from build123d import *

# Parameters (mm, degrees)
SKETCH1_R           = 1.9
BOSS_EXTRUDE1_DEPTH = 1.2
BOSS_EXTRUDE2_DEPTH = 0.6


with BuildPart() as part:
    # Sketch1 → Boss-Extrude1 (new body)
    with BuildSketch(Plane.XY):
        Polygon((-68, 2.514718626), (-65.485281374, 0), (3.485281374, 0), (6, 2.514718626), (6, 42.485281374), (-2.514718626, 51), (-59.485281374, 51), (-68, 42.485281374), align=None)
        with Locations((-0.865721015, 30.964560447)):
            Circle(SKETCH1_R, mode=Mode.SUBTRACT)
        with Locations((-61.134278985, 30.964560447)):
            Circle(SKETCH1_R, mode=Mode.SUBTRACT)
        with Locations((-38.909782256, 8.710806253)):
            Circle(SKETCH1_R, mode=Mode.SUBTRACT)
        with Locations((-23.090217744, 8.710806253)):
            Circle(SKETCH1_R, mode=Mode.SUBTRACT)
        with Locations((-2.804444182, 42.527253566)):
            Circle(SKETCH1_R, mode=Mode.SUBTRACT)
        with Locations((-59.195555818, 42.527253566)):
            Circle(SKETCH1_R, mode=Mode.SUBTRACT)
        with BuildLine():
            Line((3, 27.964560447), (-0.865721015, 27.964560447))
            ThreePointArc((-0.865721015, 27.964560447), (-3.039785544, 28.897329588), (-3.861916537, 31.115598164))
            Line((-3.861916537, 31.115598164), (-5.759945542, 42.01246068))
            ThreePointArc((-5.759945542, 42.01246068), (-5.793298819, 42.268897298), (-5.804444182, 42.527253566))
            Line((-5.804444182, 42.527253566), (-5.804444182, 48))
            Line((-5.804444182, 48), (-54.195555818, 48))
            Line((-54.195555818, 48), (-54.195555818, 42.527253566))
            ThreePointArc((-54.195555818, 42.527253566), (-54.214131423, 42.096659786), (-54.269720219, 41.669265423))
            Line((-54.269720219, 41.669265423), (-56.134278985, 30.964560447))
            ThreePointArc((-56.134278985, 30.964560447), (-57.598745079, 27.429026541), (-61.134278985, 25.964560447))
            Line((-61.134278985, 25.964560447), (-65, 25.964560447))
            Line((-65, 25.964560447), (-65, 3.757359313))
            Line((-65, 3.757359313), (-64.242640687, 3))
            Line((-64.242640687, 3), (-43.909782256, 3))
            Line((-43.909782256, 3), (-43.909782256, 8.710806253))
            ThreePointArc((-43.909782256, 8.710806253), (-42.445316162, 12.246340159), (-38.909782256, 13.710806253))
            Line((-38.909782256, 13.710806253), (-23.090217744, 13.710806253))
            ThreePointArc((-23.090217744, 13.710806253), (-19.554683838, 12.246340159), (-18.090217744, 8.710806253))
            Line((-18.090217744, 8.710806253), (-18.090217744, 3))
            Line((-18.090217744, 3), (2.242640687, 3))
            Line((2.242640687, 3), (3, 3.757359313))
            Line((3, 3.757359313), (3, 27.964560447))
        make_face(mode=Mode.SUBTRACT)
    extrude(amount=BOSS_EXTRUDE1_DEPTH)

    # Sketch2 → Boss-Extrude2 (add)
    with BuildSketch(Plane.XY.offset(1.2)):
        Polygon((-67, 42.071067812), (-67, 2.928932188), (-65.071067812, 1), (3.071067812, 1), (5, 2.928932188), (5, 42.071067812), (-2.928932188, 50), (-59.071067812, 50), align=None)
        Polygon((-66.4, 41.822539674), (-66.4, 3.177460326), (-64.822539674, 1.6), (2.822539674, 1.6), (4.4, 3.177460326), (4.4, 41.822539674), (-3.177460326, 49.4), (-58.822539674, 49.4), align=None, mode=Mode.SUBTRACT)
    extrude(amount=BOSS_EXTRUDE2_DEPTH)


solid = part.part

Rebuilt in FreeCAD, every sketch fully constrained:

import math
import FreeCAD as App
import Part
import Sketcher
from FreeCAD import Vector
Q = App.Units.Quantity


def add_polygon(sketch, points):
    """Adds a closed chain of lines whose ends are joined by coincident constraints."""
    first, n = sketch.GeometryCount, len(points)
    for a, b in zip(points, points[1:] + points[:1]):
        sketch.addGeometry(Part.LineSegment(App.Vector(*a, 0), App.Vector(*b, 0)), False)
    for i in range(n):
        sketch.addConstraint(Sketcher.Constraint("Coincident", first + i, 2, first + (i + 1) % n, 1))

doc = App.newDocument("Part")
params = doc.addObject("Spreadsheet::Sheet", "Params")
for row, (alias, value) in enumerate([
    ("sketch1_radius", "5 mm"),
    ("sketch1_radius2", "3 mm"),
    ("sketch1_diameter", "3.8 mm"),
    ("pad1_length", "1.2 mm"),
    ("pad2_length", "0.6 mm"),
], start=1):
    params.set(f"A{row}", alias)
    params.set(f"B{row}", "=" + value)
    params.setAlias(f"B{row}", alias)

body = doc.addObject("PartDesign::Body", "Body")

sketch1 = doc.addObject("Sketcher::SketchObject", "Sketch")
body.addObject(sketch1)
sketch1.AttachmentSupport = (doc.XY_Plane, [""])
sketch1.MapMode = "FlatFace"
add_polygon(sketch1, [(-68, 2.514719), (-65.485281, 0), (3.485281, 0), (6, 2.514719), (6, 42.485281), (-2.514719, 51), (-59.485281, 51), (-68, 42.485281)])
sketch1.addGeometry(Part.Circle(Vector(-38.909782, 8.710806, 0), Vector(0, 0, 1), 1.9), False)
sketch1.addGeometry(Part.Circle(Vector(-23.090218, 8.710806, 0), Vector(0, 0, 1), 1.9), False)
sketch1.addGeometry(Part.Circle(Vector(-61.134279, 30.96456, 0), Vector(0, 0, 1), 1.9), False)
sketch1.addGeometry(Part.Circle(Vector(-59.195556, 42.527254, 0), Vector(0, 0, 1), 1.9), False)
sketch1.addGeometry(Part.LineSegment(Vector(-0.865721, 27.96456, 0), Vector(3, 27.96456, 0)), False)
sketch1.addGeometry(Part.LineSegment(Vector(3, 27.96456, 0), Vector(3, 3.757359, 0)), False)
sketch1.addGeometry(Part.LineSegment(Vector(3, 3.757359, 0), Vector(2.242641, 3, 0)), False)
sketch1.addGeometry(Part.LineSegment(Vector(2.242641, 3, 0), Vector(-18.090218, 3, 0)), False)
sketch1.addGeometry(Part.LineSegment(Vector(-18.090218, 3, 0), Vector(-18.090218, 8.710806, 0)), False)
sketch1.addGeometry(Part.ArcOfCircle(Part.Circle(Vector(-23.090218, 8.710806, 0), Vector(0, 0, 1), 5), math.radians(0), math.radians(90)), False)
sketch1.addGeometry(Part.LineSegment(Vector(-23.090218, 13.710806, 0), Vector(-38.909782, 13.710806, 0)), False)
sketch1.addGeometry(Part.ArcOfCircle(Part.Circle(Vector(-38.909782, 8.710806, 0), Vector(0, 0, 1), 5), math.radians(90), math.radians(180)), False)
sketch1.addGeometry(Part.LineSegment(Vector(-43.909782, 8.710806, 0), Vector(-43.909782, 3, 0)), False)
sketch1.addGeometry(Part.LineSegment(Vector(-43.909782, 3, 0), Vector(-64.242641, 3, 0)), False)
sketch1.addGeometry(Part.LineSegment(Vector(-64.242641, 3, 0), Vector(-65, 3.757359, 0)), False)
sketch1.addGeometry(Part.LineSegment(Vector(-65, 3.757359, 0), Vector(-65, 25.96456, 0)), False)
sketch1.addGeometry(Part.LineSegment(Vector(-65, 25.96456, 0), Vector(-61.134279, 25.96456, 0)), False)
sketch1.addGeometry(Part.ArcOfCircle(Part.Circle(Vector(-61.134279, 30.96456, 0), Vector(0, 0, 1), 5), math.radians(-90), math.radians(0)), False)
sketch1.addGeometry(Part.LineSegment(Vector(-56.134279, 30.96456, 0), Vector(-54.26972, 41.669265, 0)), False)
sketch1.addGeometry(Part.ArcOfCircle(Part.Circle(Vector(-59.195556, 42.527254, 0), Vector(0, 0, 1), 5), math.radians(-9.880722), math.radians(0)), False)
sketch1.addGeometry(Part.LineSegment(Vector(-54.195556, 42.527254, 0), Vector(-54.195556, 48, 0)), False)
sketch1.addGeometry(Part.LineSegment(Vector(-54.195556, 48, 0), Vector(-5.804444, 48, 0)), False)
sketch1.addGeometry(Part.LineSegment(Vector(-5.804444, 48, 0), Vector(-5.804444, 42.527254, 0)), False)
sketch1.addGeometry(Part.ArcOfCircle(Part.Circle(Vector(-2.804444, 42.527254, 0), Vector(0, 0, 1), 3), math.radians(180), math.radians(189.880721)), False)
sketch1.addGeometry(Part.LineSegment(Vector(-5.759946, 42.012461, 0), Vector(-3.861917, 31.115598, 0)), False)
sketch1.addGeometry(Part.ArcOfCircle(Part.Circle(Vector(-0.865721, 30.96456, 0), Vector(0, 0, 1), 3), math.radians(177.114172), math.radians(270)), False)
sketch1.addGeometry(Part.Circle(Vector(-0.865721, 30.96456, 0), Vector(0, 0, 1), 1.9), False)
sketch1.addGeometry(Part.Circle(Vector(-2.804444, 42.527254, 0), Vector(0, 0, 1), 1.9), False)
sketch1.addConstraint(Sketcher.Constraint("Coincident", 12, 2, 13, 1))
sketch1.addConstraint(Sketcher.Constraint("Coincident", 13, 2, 14, 1))
sketch1.addConstraint(Sketcher.Constraint("Coincident", 14, 2, 15, 1))
sketch1.addConstraint(Sketcher.Constraint("Coincident", 15, 2, 16, 1))
sketch1.addConstraint(Sketcher.Constraint("Tangent", 16, 2, 17, 1))
sketch1.addConstraint(Sketcher.Constraint("Tangent", 17, 2, 18, 1))
sketch1.addConstraint(Sketcher.Constraint("Tangent", 18, 2, 19, 1))
sketch1.addConstraint(Sketcher.Constraint("Tangent", 19, 2, 20, 1))
sketch1.addConstraint(Sketcher.Constraint("Coincident", 20, 2, 21, 1))
sketch1.addConstraint(Sketcher.Constraint("Coincident", 21, 2, 22, 1))
sketch1.addConstraint(Sketcher.Constraint("Coincident", 22, 2, 23, 1))
sketch1.addConstraint(Sketcher.Constraint("Coincident", 23, 2, 24, 1))
sketch1.addConstraint(Sketcher.Constraint("Tangent", 24, 2, 25, 1))
sketch1.addConstraint(Sketcher.Constraint("Coincident", 25, 2, 26, 1))
sketch1.addConstraint(Sketcher.Constraint("Tangent", 26, 2, 27, 1))
sketch1.addConstraint(Sketcher.Constraint("Tangent", 27, 2, 28, 1))
sketch1.addConstraint(Sketcher.Constraint("Coincident", 28, 2, 29, 1))
sketch1.addConstraint(Sketcher.Constraint("Coincident", 29, 2, 30, 1))
sketch1.addConstraint(Sketcher.Constraint("Tangent", 30, 2, 31, 1))
sketch1.addConstraint(Sketcher.Constraint("Tangent", 31, 2, 32, 1))
sketch1.addConstraint(Sketcher.Constraint("Coincident", 32, 2, 33, 1))
sketch1.addConstraint(Sketcher.Constraint("Tangent", 33, 2, 12, 1))
sketch1.addConstraint(Sketcher.Constraint("Horizontal", 1))
sketch1.addConstraint(Sketcher.Constraint("Vertical", 3))
sketch1.addConstraint(Sketcher.Constraint("Horizontal", 5))
sketch1.addConstraint(Sketcher.Constraint("Vertical", 7))
sketch1.addConstraint(Sketcher.Constraint("Horizontal", 12))
sketch1.addConstraint(Sketcher.Constraint("Vertical", 13))
sketch1.addConstraint(Sketcher.Constraint("Horizontal", 15))
sketch1.addConstraint(Sketcher.Constraint("Vertical", 16))
sketch1.addConstraint(Sketcher.Constraint("Horizontal", 18))
sketch1.addConstraint(Sketcher.Constraint("Vertical", 20))
sketch1.addConstraint(Sketcher.Constraint("Horizontal", 21))
sketch1.addConstraint(Sketcher.Constraint("Vertical", 23))
sketch1.addConstraint(Sketcher.Constraint("Horizontal", 24))
sketch1.addConstraint(Sketcher.Constraint("Vertical", 28))
sketch1.addConstraint(Sketcher.Constraint("Horizontal", 29))
sketch1.addConstraint(Sketcher.Constraint("Vertical", 30))
sketch1.addConstraint(Sketcher.Constraint("Coincident", 17, 3, 9, 3))
sketch1.addConstraint(Sketcher.Constraint("Coincident", 19, 3, 8, 3))
sketch1.addConstraint(Sketcher.Constraint("Coincident", 25, 3, 10, 3))
sketch1.addConstraint(Sketcher.Constraint("Coincident", 27, 3, 11, 3))
sketch1.addConstraint(Sketcher.Constraint("Coincident", 34, 3, 33, 3))
sketch1.addConstraint(Sketcher.Constraint("Coincident", 35, 3, 31, 3))
sketch1.addConstraint(Sketcher.Constraint("Equal", 8, 9))
sketch1.addConstraint(Sketcher.Constraint("Equal", 9, 10))
sketch1.addConstraint(Sketcher.Constraint("Equal", 10, 11))
sketch1.addConstraint(Sketcher.Constraint("Equal", 17, 19))
sketch1.addConstraint(Sketcher.Constraint("Equal", 19, 25))
sketch1.addConstraint(Sketcher.Constraint("Equal", 25, 27))
sketch1.addConstraint(Sketcher.Constraint("Equal", 31, 33))
sketch1.addConstraint(Sketcher.Constraint("Equal", 11, 34))
sketch1.addConstraint(Sketcher.Constraint("Equal", 34, 35))
sketch1.addConstraint(Sketcher.Constraint("PointOnObject", 0, 2, -1))
sketch1.addConstraint(Sketcher.Constraint("Perpendicular", 0, 2))
sketch1.addConstraint(Sketcher.Constraint("Perpendicular", 2, 4))
sketch1.addConstraint(Sketcher.Constraint("Perpendicular", 4, 6))
sketch1.addConstraint(Sketcher.Constraint("Parallel", 6, 14))
sketch1.addConstraint(Sketcher.Constraint("Perpendicular", 14, 22))
sketch1.addConstraint(Sketcher.Constraint("Horizontal", 27, 3, 31, 3))
sketch1.addConstraint(Sketcher.Constraint("Horizontal", 25, 3, 33, 3))
sketch1.addConstraint(Sketcher.Constraint("Horizontal", 3, 2, 6, 2))
sketch1.addConstraint(Sketcher.Constraint("Horizontal", 2, 2, 7, 2))
sketch1.addConstraint(Sketcher.Constraint("Horizontal", 15, 2, 20, 2))
sketch1.addConstraint(Sketcher.Constraint("Horizontal", 13, 2, 22, 2))
sketch1.addConstraint(Sketcher.Constraint("Horizontal", 34, 3, 25, 2))
sketch1.addConstraint(Sketcher.Constraint("Equal", 15, 21))
sketch1.addConstraint(Sketcher.Constraint("Equal", 12, 24))
sketch1.addConstraint(Sketcher.Constraint("Equal", 0, 2))
sketch1.addConstraint(Sketcher.Constraint("Radius", 17, Q("5 mm")))
sketch1.addConstraint(Sketcher.Constraint("Radius", 31, Q("3 mm")))
sketch1.addConstraint(Sketcher.Constraint("Diameter", 8, Q("3.8 mm")))
sketch1.addConstraint(Sketcher.Constraint("DistanceX", -1, 1, 2, 2, Q("6 mm")))
sketch1.addConstraint(Sketcher.Constraint("DistanceY", -1, 1, 4, 2, Q("51 mm")))
sketch1.addConstraint(Sketcher.Constraint("DistanceX", 6, 2, -1, 1, Q("68 mm")))
sketch1.addConstraint(Sketcher.Constraint("DistanceX", -1, 1, 12, 2, Q("3 mm")))
sketch1.addConstraint(Sketcher.Constraint("DistanceY", -1, 1, 14, 2, Q("3 mm")))
sketch1.addConstraint(Sketcher.Constraint("DistanceX", 22, 2, -1, 1, Q("65 mm")))
sketch1.addConstraint(Sketcher.Constraint("DistanceY", -1, 1, 28, 2, Q("48 mm")))
sketch1.addConstraint(Sketcher.Constraint("DistanceY", 13, 2, 13, 1, Q("24.207201 mm")))
sketch1.addConstraint(Sketcher.Constraint("DistanceX", 12, 1, 12, 2, Q("3.865721 mm")))
sketch1.addConstraint(Sketcher.Constraint("DistanceX", 15, 2, 15, 1, Q("20.332858 mm")))
sketch1.addConstraint(Sketcher.Constraint("DistanceX", 29, 1, 29, 2, Q("48.391112 mm")))
sketch1.addConstraint(Sketcher.Constraint("DistanceY", -1, 1, 32, 2, Q("31.115598 mm")))
sketch1.addConstraint(Sketcher.Constraint("DistanceX", 0, 2, 8, 3, Q("26.575499 mm")))
sketch1.addConstraint(Sketcher.Constraint("DistanceX", 5, 2, 8, 3, Q("20.575499 mm")))
sketch1.addConstraint(Sketcher.Constraint("DistanceX", 30, 2, 31, 2, Q("0.044499 mm")))
sketch1.addConstraint(Sketcher.Constraint("Distance", 0, Q("3.556349 mm")))
sketch1.addConstraint(Sketcher.Constraint("DistanceY", 16, 1, 16, 2, Q("5.710806 mm")))
sketch1.addConstraint(Sketcher.Constraint("DistanceY", 28, 1, 28, 2, Q("5.472746 mm")))
sketch1.setExpression("Constraints[77]", "Params.sketch1_radius")
sketch1.setExpression("Constraints[78]", "Params.sketch1_radius2")
sketch1.setExpression("Constraints[79]", "Params.sketch1_diameter")
pad1 = doc.addObject("PartDesign::Pad", "Pad")
body.addObject(pad1)
pad1.Profile = sketch1
pad1.setExpression("Length", "Params.pad1_length")

sketch2 = doc.addObject("Sketcher::SketchObject", "Sketch001")
body.addObject(sketch2)
sketch2.AttachmentSupport = (doc.XY_Plane, [""])
sketch2.MapMode = "FlatFace"
sketch2.AttachmentOffset = App.Placement(Vector(0, 0, 1.2), App.Rotation())
add_polygon(sketch2, [(-67, 42.071068), (-67, 2.928932), (-65.071068, 1), (3.071068, 1), (5, 2.928932), (5, 42.071068), (-2.928932, 50), (-59.071068, 50)])
add_polygon(sketch2, [(-66.4, 3.17746), (-66.4, 41.82254), (-58.82254, 49.4), (-3.17746, 49.4), (4.4, 41.82254), (4.4, 3.17746), (2.82254, 1.6), (-64.82254, 1.6)])
sketch2.addConstraint(Sketcher.Constraint("Vertical", 0))
sketch2.addConstraint(Sketcher.Constraint("Horizontal", 2))
sketch2.addConstraint(Sketcher.Constraint("Vertical", 4))
sketch2.addConstraint(Sketcher.Constraint("Horizontal", 6))
sketch2.addConstraint(Sketcher.Constraint("Vertical", 8))
sketch2.addConstraint(Sketcher.Constraint("Horizontal", 10))
sketch2.addConstraint(Sketcher.Constraint("Vertical", 12))
sketch2.addConstraint(Sketcher.Constraint("Horizontal", 14))
sketch2.addConstraint(Sketcher.Constraint("Perpendicular", 1, 3))
sketch2.addConstraint(Sketcher.Constraint("Perpendicular", 3, 5))
sketch2.addConstraint(Sketcher.Constraint("Perpendicular", 5, 7))
sketch2.addConstraint(Sketcher.Constraint("Parallel", 7, 9))
sketch2.addConstraint(Sketcher.Constraint("Perpendicular", 9, 11))
sketch2.addConstraint(Sketcher.Constraint("Perpendicular", 11, 13))
sketch2.addConstraint(Sketcher.Constraint("Perpendicular", 13, 15))
sketch2.addConstraint(Sketcher.Constraint("Horizontal", 0, 2, 3, 2))
sketch2.addConstraint(Sketcher.Constraint("Horizontal", 4, 2, 7, 2))
sketch2.addConstraint(Sketcher.Constraint("Horizontal", 8, 2, 11, 2))
sketch2.addConstraint(Sketcher.Constraint("Horizontal", 12, 2, 15, 2))
sketch2.addConstraint(Sketcher.Constraint("Equal", 1, 3))
sketch2.addConstraint(Sketcher.Constraint("DistanceX", 0, 2, -1, 1, Q("67 mm")))
sketch2.addConstraint(Sketcher.Constraint("DistanceY", -1, 1, 1, 2, Q("1 mm")))
sketch2.addConstraint(Sketcher.Constraint("DistanceX", -1, 1, 3, 2, Q("5 mm")))
sketch2.addConstraint(Sketcher.Constraint("DistanceY", -1, 1, 5, 2, Q("50 mm")))
sketch2.addConstraint(Sketcher.Constraint("DistanceX", 5, 2, 2, 2, Q("6 mm")))
sketch2.addConstraint(Sketcher.Constraint("DistanceX", 14, 2, 9, 2, Q("6 mm")))
sketch2.addConstraint(Sketcher.Constraint("DistanceX", 8, 2, -1, 1, Q("66.4 mm")))
sketch2.addConstraint(Sketcher.Constraint("DistanceY", -1, 1, 9, 2, Q("49.4 mm")))
sketch2.addConstraint(Sketcher.Constraint("DistanceX", -1, 1, 11, 2, Q("4.4 mm")))
sketch2.addConstraint(Sketcher.Constraint("DistanceY", -1, 1, 13, 2, Q("1.6 mm")))
sketch2.addConstraint(Sketcher.Constraint("DistanceX", 10, 1, 10, 2, Q("55.645079 mm")))
sketch2.addConstraint(Sketcher.Constraint("DistanceX", 2, 1, 2, 2, Q("68.142136 mm")))
pad2 = doc.addObject("PartDesign::Pad", "Pad001")
body.addObject(pad2)
pad2.Profile = sketch2
pad2.setExpression("Length", "Params.pad2_length")

doc.recompute()
